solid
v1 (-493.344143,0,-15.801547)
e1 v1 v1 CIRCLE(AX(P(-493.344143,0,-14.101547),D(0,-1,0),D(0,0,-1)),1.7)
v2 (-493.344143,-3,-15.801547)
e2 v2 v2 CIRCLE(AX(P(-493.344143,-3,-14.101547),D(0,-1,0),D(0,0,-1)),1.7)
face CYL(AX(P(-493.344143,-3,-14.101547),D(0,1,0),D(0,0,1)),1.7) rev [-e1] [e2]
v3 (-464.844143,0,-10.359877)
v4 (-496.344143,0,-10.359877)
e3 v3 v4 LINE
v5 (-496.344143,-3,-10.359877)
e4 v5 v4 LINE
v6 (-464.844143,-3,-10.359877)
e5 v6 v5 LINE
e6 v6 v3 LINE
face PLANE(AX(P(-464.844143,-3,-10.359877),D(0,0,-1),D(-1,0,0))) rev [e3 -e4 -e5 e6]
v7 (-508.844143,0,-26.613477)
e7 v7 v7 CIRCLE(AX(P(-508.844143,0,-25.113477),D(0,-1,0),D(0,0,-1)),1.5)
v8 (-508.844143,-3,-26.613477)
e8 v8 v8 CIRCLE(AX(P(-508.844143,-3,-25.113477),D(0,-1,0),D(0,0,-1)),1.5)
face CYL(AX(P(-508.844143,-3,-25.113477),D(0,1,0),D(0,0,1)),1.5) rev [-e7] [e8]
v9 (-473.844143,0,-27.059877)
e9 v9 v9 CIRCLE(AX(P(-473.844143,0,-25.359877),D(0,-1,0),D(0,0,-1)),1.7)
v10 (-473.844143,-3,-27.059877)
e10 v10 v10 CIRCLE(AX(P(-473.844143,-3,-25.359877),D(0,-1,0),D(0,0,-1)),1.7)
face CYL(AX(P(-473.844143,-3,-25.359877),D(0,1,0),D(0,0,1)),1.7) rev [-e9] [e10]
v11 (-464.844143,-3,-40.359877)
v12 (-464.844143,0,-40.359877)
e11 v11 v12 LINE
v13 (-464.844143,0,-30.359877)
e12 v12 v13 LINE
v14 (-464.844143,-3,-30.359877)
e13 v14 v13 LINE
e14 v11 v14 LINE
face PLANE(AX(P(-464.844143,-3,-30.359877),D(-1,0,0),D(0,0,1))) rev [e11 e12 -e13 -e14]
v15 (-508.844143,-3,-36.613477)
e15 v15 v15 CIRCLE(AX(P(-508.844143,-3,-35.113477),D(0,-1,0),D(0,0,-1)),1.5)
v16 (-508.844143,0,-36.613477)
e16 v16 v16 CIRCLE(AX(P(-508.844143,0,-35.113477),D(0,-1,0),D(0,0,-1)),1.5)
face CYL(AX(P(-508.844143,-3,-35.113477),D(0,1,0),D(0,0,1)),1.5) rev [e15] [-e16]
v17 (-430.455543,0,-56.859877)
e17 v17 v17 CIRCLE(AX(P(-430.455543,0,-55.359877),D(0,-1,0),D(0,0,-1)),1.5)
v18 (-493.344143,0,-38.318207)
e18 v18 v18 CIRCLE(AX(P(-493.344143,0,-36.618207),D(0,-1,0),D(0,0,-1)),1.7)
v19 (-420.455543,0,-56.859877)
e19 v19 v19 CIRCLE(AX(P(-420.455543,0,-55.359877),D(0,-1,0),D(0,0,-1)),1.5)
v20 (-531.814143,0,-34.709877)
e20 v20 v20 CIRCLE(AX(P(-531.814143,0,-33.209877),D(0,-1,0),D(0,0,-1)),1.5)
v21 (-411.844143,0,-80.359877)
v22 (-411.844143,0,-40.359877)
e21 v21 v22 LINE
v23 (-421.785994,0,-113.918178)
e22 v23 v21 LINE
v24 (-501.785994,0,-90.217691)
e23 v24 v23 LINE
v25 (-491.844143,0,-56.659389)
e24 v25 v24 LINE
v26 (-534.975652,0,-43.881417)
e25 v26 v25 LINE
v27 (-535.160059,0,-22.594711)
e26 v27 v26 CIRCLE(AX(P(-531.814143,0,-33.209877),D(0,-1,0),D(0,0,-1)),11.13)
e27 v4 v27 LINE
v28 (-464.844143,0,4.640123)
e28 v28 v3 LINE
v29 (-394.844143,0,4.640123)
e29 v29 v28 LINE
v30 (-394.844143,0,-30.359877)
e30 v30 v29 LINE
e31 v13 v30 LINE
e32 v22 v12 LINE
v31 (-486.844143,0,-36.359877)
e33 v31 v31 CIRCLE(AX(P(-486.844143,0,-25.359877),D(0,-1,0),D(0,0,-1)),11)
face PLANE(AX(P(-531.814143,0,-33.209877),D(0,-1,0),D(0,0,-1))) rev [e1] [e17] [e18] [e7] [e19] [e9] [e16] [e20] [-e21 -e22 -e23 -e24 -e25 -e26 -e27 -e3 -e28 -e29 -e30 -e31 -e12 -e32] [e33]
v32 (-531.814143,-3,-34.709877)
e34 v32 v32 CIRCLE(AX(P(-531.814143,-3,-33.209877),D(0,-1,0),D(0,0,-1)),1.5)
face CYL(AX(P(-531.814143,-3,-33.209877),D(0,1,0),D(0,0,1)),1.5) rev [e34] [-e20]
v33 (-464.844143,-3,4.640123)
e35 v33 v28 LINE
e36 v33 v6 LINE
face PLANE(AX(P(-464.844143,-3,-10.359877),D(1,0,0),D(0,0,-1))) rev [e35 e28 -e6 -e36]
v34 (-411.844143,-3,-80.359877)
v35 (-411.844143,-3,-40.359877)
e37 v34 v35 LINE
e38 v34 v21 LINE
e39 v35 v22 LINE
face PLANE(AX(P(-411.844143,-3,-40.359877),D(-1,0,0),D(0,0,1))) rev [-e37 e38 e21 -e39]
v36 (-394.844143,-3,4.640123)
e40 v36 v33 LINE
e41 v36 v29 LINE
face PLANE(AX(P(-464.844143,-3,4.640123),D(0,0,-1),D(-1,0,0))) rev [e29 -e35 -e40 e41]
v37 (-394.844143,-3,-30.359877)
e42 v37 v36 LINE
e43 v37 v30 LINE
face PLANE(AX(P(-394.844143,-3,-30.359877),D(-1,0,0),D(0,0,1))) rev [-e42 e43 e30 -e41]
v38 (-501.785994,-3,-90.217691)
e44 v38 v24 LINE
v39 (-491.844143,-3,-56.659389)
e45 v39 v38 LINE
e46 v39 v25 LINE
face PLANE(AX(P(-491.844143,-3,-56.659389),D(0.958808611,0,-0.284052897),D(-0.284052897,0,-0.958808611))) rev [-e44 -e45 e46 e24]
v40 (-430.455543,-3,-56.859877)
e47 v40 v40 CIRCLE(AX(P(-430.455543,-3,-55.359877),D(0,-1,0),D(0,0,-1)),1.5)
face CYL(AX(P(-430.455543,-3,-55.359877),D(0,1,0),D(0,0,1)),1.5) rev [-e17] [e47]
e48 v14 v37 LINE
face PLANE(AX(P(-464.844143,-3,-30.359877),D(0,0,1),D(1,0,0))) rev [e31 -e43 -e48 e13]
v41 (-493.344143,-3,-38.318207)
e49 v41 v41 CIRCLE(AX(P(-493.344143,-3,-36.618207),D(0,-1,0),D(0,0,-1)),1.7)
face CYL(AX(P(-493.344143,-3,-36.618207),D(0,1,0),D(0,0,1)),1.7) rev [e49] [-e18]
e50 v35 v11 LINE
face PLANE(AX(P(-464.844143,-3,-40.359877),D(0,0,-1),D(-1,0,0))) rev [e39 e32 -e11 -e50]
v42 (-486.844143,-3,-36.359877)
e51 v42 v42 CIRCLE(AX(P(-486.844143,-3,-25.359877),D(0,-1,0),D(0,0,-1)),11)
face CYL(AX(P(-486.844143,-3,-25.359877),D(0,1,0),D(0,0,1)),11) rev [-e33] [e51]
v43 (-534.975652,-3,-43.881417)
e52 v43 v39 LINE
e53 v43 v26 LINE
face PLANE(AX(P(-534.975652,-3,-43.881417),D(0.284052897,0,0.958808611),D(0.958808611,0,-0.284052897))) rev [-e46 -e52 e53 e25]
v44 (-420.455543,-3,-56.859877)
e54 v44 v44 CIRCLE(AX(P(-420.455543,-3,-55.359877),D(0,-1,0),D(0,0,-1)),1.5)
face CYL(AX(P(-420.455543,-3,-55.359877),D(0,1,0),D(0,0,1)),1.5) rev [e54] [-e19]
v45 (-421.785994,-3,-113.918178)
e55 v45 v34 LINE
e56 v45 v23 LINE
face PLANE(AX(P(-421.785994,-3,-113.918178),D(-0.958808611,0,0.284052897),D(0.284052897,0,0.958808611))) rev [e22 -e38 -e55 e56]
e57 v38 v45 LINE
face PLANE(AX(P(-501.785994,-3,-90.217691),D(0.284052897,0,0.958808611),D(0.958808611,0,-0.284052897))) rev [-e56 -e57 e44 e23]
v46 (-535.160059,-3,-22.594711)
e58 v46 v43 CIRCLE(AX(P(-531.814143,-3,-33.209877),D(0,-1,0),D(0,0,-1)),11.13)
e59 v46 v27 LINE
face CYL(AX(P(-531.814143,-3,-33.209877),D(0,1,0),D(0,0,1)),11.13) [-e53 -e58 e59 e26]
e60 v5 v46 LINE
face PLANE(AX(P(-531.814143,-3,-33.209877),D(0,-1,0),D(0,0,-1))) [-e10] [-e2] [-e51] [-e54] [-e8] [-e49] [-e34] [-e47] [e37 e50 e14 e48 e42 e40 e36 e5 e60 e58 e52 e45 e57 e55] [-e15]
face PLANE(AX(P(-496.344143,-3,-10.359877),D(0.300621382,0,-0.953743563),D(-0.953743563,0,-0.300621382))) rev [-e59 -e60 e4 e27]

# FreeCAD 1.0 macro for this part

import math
import FreeCAD as App
import Part
import Sketcher
from FreeCAD import Vector
Q = App.Units.Quantity

doc = App.newDocument("Part")
body = doc.addObject("PartDesign::Body", "Body")

sketch1 = body.newObject("Sketcher::SketchObject", "Sketch")
sketch1.AttachmentSupport = (doc.getObject("XZ_Plane"), [""])
sketch1.MapMode = "FlatFace"
sketch1.addGeometry([
    Part.LineSegment(Vector(-411.844143, -40.359877, 0), Vector(-464.844143, -40.359877, 0)),
    Part.LineSegment(Vector(-464.844143, -40.359877, 0), Vector(-464.844143, -30.359877, 0)),
    Part.LineSegment(Vector(-464.844143, -30.359877, 0), Vector(-394.844143, -30.359877, 0)),
    Part.LineSegment(Vector(-394.844143, -30.359877, 0), Vector(-394.844143, 4.640123, 0)),
    Part.LineSegment(Vector(-394.844143, 4.640123, 0), Vector(-464.844143, 4.640123, 0)),
    Part.LineSegment(Vector(-464.844143, 4.640123, 0), Vector(-464.844143, -10.359877, 0)),
    Part.LineSegment(Vector(-464.844143, -10.359877, 0), Vector(-496.344143, -10.359877, 0)),
    Part.LineSegment(Vector(-496.344143, -10.359877, 0), Vector(-535.160059, -22.594711, 0)),
    Part.ArcOfCircle(Part.Circle(Vector(-531.814143, -33.209877, 0), Vector(0, 0, 1), 11.13), math.radians(107.494929), math.radians(253.497756)),
    Part.LineSegment(Vector(-534.975652, -43.881417, 0), Vector(-491.844143, -56.659389, 0)),
    Part.LineSegment(Vector(-491.844143, -56.659389, 0), Vector(-501.785994, -90.217691, 0)),
    Part.LineSegment(Vector(-501.785994, -90.217691, 0), Vector(-421.785994, -113.918178, 0)),
    Part.LineSegment(Vector(-421.785994, -113.918178, 0), Vector(-411.844143, -80.359877, 0)),
    Part.LineSegment(Vector(-411.844143, -80.359877, 0), Vector(-411.844143, -40.359877, 0)),
    Part.Circle(Vector(-420.455543, -55.359877, 0), Vector(0, 0, 1), 1.5),
    Part.Circle(Vector(-430.455543, -55.359877, 0), Vector(0, 0, 1), 1.5),
    Part.Circle(Vector(-493.344143, -36.618207, 0), Vector(0, 0, 1), 1.7),
    Part.Circle(Vector(-508.844143, -35.113477, 0), Vector(0, 0, 1), 1.5),
    Part.Circle(Vector(-473.844143, -25.359877, 0), Vector(0, 0, 1), 1.7),
    Part.Circle(Vector(-486.844143, -25.359877, 0), Vector(0, 0, 1), 11),
    Part.Circle(Vector(-531.814143, -33.209877, 0), Vector(0, 0, 1), 1.5),
    Part.Circle(Vector(-508.844143, -25.113477, 0), Vector(0, 0, 1), 1.5),
    Part.Circle(Vector(-493.344143, -14.101547, 0), Vector(0, 0, 1), 1.7),
], False)
sketch1.addConstraint([
    Sketcher.Constraint("Coincident", 0, 2, 1, 1),
    Sketcher.Constraint("Coincident", 1, 2, 2, 1),
    Sketcher.Constraint("Coincident", 2, 2, 3, 1),
    Sketcher.Constraint("Coincident", 3, 2, 4, 1),
    Sketcher.Constraint("Coincident", 4, 2, 5, 1),
    Sketcher.Constraint("Coincident", 5, 2, 6, 1),
    Sketcher.Constraint("Coincident", 6, 2, 7, 1),
    Sketcher.Constraint("Tangent", 7, 2, 8, 1),
    Sketcher.Constraint("Tangent", 8, 2, 9, 1),
    Sketcher.Constraint("Coincident", 9, 2, 10, 1),
    Sketcher.Constraint("Coincident", 10, 2, 11, 1),
    Sketcher.Constraint("Coincident", 11, 2, 12, 1),
    Sketcher.Constraint("Coincident", 12, 2, 13, 1),
    Sketcher.Constraint("Coincident", 13, 2, 0, 1),
    Sketcher.Constraint("Horizontal", 0),
    Sketcher.Constraint("Vertical", 1),
    Sketcher.Constraint("Horizontal", 2),
    Sketcher.Constraint("Vertical", 3),
    Sketcher.Constraint("Horizontal", 4),
    Sketcher.Constraint("Vertical", 5),
    Sketcher.Constraint("Horizontal", 6),
    Sketcher.Constraint("Vertical", 13),
    Sketcher.Constraint("Coincident", 20, 3, 8, 3),
    Sketcher.Constraint("Equal", 14, 15),
    Sketcher.Constraint("Equal", 15, 17),
    Sketcher.Constraint("Equal", 16, 18),
    Sketcher.Constraint("Equal", 17, 20),
    Sketcher.Constraint("Equal", 20, 21),
    Sketcher.Constraint("Equal", 18, 22),
    Sketcher.Constraint("Perpendicular", 9, 10),
    Sketcher.Constraint("Perpendicular", 10, 11),
    Sketcher.Constraint("Perpendicular", 11, 12),
    Sketcher.Constraint("Horizontal", 14, 3, 15, 3),
    Sketcher.Constraint("Horizontal", 18, 3, 19, 3),
    Sketcher.Constraint("Vertical", 17, 3, 21, 3),
    Sketcher.Constraint("Vertical", 16, 3, 22, 3),
    Sketcher.Constraint("Vertical", 1, 2, 4, 2),
    Sketcher.Constraint("Equal", 10, 12),
    Sketcher.Constraint("Diameter", 14, Q("3 mm")),
    Sketcher.Constraint("Diameter", 19, Q("22 mm")),
    Sketcher.Constraint("Diameter", 16, Q("3.4 mm")),
    Sketcher.Constraint("DistanceX", 0, 2, 0, 1, Q("53 mm")),
    Sketcher.Constraint("DistanceX", 2, 1, 2, 2, Q("70 mm")),
    Sketcher.Constraint("DistanceY", 1, 1, 1, 2, Q("10 mm")),
    Sketcher.Constraint("DistanceY", 3, 1, 3, 2, Q("35 mm")),
    Sketcher.Constraint("DistanceY", 5, 2, 5, 1, Q("15 mm")),
    Sketcher.Constraint("DistanceY", 13, 1, 13, 2, Q("40 mm")),
    Sketcher.Constraint("Radius", 8, Q("11.13 mm")),
    Sketcher.Constraint("Distance", 10, Q("35 mm")),
    Sketcher.Constraint("DistanceX", 6, 2, 6, 1, Q("31.5 mm")),
    Sketcher.Constraint("DistanceX", 15, 3, 14, 3, Q("10 mm")),
    Sketcher.Constraint("DistanceX", 17, 3, 18, 3, Q("35 mm")),
    Sketcher.Constraint("DistanceY", 15, 3, 18, 3, Q("30 mm")),
    Sketcher.Constraint("DistanceX", 19, 3, 18, 3, Q("13 mm")),
    Sketcher.Constraint("DistanceY", 17, 3, 21, 3, Q("10 mm")),
    Sketcher.Constraint("DistanceX", 18, 3, 0, 2, Q("9 mm")),
    Sketcher.Constraint("DistanceY", 0, 2, 18, 3, Q("15 mm")),
    Sketcher.Constraint("DistanceX", 6, 2, 22, 3, Q("3 mm")),
    Sketcher.Constraint("DistanceX", 17, 3, 9, 2, Q("17 mm")),
    Sketcher.Constraint("DistanceY", 14, 3, 8, 3, Q("22.15 mm")),
    Sketcher.Constraint("DistanceX", 8, 3, 16, 3, Q("38.47 mm")),
    Sketcher.Constraint("DistanceX", 8, 3, 14, 3, Q("111.3586 mm")),
    Sketcher.Constraint("DistanceY", 17, 3, 8, 3, Q("1.9036 mm")),
    Sketcher.Constraint("DistanceX", 7, 2, -1, 1, Q("535.160059 mm")),
    Sketcher.Constraint("DistanceY", 7, 2, -1, 1, Q("22.594711 mm")),
    Sketcher.Constraint("DistanceY", 16, 3, 8, 3, Q("3.40833 mm")),
    Sketcher.Constraint("DistanceY", 19, 3, 22, 3, Q("11.25833 mm")),
])
pad1 = body.newObject("PartDesign::Pad", "Pad")
pad1.Profile = sketch1
pad1.Length = 3

doc.recompute()
